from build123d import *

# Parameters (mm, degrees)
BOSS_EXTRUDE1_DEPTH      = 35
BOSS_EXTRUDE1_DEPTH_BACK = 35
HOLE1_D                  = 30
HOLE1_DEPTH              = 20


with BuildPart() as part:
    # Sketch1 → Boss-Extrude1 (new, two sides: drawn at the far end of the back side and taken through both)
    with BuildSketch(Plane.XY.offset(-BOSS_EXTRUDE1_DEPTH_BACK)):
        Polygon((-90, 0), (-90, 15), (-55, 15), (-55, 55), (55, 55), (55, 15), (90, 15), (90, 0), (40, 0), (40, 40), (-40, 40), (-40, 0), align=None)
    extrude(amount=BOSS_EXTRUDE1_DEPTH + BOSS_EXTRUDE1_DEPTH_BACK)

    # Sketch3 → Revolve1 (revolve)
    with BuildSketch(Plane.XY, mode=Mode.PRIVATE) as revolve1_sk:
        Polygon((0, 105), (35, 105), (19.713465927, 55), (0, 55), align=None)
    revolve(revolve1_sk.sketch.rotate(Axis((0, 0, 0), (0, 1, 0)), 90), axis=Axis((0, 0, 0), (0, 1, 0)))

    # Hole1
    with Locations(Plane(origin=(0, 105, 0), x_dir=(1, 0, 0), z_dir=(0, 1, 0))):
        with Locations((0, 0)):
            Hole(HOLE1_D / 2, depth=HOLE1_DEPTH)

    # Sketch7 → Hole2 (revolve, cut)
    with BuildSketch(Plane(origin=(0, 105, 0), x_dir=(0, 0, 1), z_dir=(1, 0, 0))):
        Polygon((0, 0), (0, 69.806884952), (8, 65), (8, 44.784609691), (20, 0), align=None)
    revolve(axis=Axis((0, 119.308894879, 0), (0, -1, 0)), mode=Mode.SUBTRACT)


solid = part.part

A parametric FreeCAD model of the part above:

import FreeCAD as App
import Part
import Sketcher
Q = App.Units.Quantity

doc = App.newDocument("Part")
body = doc.addObject("PartDesign::Body", "Body")

# Sketch on XY plane
sketch1 = doc.addObject("Sketcher::SketchObject", "Sketch")
body.addObject(sketch1)
sketch1.AttachmentSupport = (doc.XY_Plane, [""])
sketch1.MapMode = "FlatFace"
sketch1.addGeometry(Part.LineSegment(App.Vector(-90, 15, 0), App.Vector(-90, 0, 0)), False)
sketch1.addGeometry(Part.LineSegment(App.Vector(-90, 0, 0), App.Vector(-40, 0, 0)), False)
sketch1.addGeometry(Part.LineSegment(App.Vector(-40, 0, 0), App.Vector(-40, 40, 0)), False)
sketch1.addGeometry(Part.LineSegment(App.Vector(-40, 40, 0), App.Vector(40, 40, 0)), False)
sketch1.addGeometry(Part.LineSegment(App.Vector(40, 40, 0), App.Vector(40, 0, 0)), False)
sketch1.addGeometry(Part.LineSegment(App.Vector(40, 0, 0), App.Vector(90, 0, 0)), False)
sketch1.addGeometry(Part.LineSegment(App.Vector(90, 0, 0), App.Vector(90, 15, 0)), False)
sketch1.addGeometry(Part.LineSegment(App.Vector(90, 15, 0), App.Vector(55, 15, 0)), False)
sketch1.addGeometry(Part.LineSegment(App.Vector(55, 15, 0), App.Vector(55, 55, 0)), False)
sketch1.addGeometry(Part.LineSegment(App.Vector(55, 55, 0), App.Vector(-55, 55, 0)), False)
sketch1.addGeometry(Part.LineSegment(App.Vector(-55, 55, 0), App.Vector(-55, 15, 0)), False)
sketch1.addGeometry(Part.LineSegment(App.Vector(-55, 15, 0), App.Vector(-90, 15, 0)), False)
sketch1.addConstraint(Sketcher.Constraint("Coincident", 0, 2, 1, 1))
sketch1.addConstraint(Sketcher.Constraint("Coincident", 1, 2, 2, 1))
sketch1.addConstraint(Sketcher.Constraint("Coincident", 2, 2, 3, 1))
sketch1.addConstraint(Sketcher.Constraint("Coincident", 3, 2, 4, 1))
sketch1.addConstraint(Sketcher.Constraint("Coincident", 4, 2, 5, 1))
sketch1.addConstraint(Sketcher.Constraint("Coincident", 5, 2, 6, 1))
sketch1.addConstraint(Sketcher.Constraint("Coincident", 6, 2, 7, 1))
sketch1.addConstraint(Sketcher.Constraint("Coincident", 7, 2, 8, 1))
sketch1.addConstraint(Sketcher.Constraint("Coincident", 8, 2, 9, 1))
sketch1.addConstraint(Sketcher.Constraint("Coincident", 9, 2, 10, 1))
sketch1.addConstraint(Sketcher.Constraint("Coincident", 10, 2, 11, 1))
sketch1.addConstraint(Sketcher.Constraint("Coincident", 11, 2, 0, 1))
sketch1.addConstraint(Sketcher.Constraint("Vertical", 0))
sketch1.addConstraint(Sketcher.Constraint("Horizontal", 1))
sketch1.addConstraint(Sketcher.Constraint("Vertical", 2))
sketch1.addConstraint(Sketcher.Constraint("Horizontal", 3))
sketch1.addConstraint(Sketcher.Constraint("Vertical", 4))
sketch1.addConstraint(Sketcher.Constraint("Horizontal", 5))
sketch1.addConstraint(Sketcher.Constraint("Vertical", 6))
sketch1.addConstraint(Sketcher.Constraint("Horizontal", 7))
sketch1.addConstraint(Sketcher.Constraint("Vertical", 8))
sketch1.addConstraint(Sketcher.Constraint("Horizontal", 9))
sketch1.addConstraint(Sketcher.Constraint("Vertical", 10))
sketch1.addConstraint(Sketcher.Constraint("Horizontal", 11))
sketch1.addConstraint(Sketcher.Constraint("Symmetric", 1, 2, 4, 2, -1, 1))
sketch1.addConstraint(Sketcher.Constraint("Symmetric", 0, 2, 5, 2, -2))
sketch1.addConstraint(Sketcher.Constraint("Symmetric", 7, 2, 10, 2, -2))
sketch1.addConstraint(Sketcher.Constraint("Equal", 4, 8))
sketch1.addConstraint(Sketcher.Constraint("DistanceX", 1, 1, 1, 2, 50.0))
sketch1.addConstraint(Sketcher.Constraint("DistanceX", 3, 1, 3, 2, 80.0))
sketch1.addConstraint(Sketcher.Constraint("DistanceX", 7, 2, 7, 1, 35.0))
sketch1.addConstraint(Sketcher.Constraint("DistanceY", 0, 2, 0, 1, 15.0))
sketch1.addConstraint(Sketcher.Constraint("DistanceY", 2, 1, 2, 2, 40.0))
pad1 = doc.addObject("PartDesign::Pad", "Pad")
body.addObject(pad1)
pad1.Profile = sketch1
pad1.Type = "TwoLengths"
pad1.Length = 35
pad1.Length2 = 35

# Sketch on XY plane
sketch2 = doc.addObject("Sketcher::SketchObject", "Sketch001")
body.addObject(sketch2)
sketch2.AttachmentSupport = (doc.XY_Plane, [""])
sketch2.MapMode = "FlatFace"
sketch2.addGeometry(Part.LineSegment(App.Vector(35, 105, 0), App.Vector(0, 105, 0)), False)
sketch2.addGeometry(Part.LineSegment(App.Vector(0, 105, 0), App.Vector(0, 55, 0)), False)
sketch2.addGeometry(Part.LineSegment(App.Vector(0, 55, 0), App.Vector(19.713466, 55, 0)), False)
sketch2.addGeometry(Part.LineSegment(App.Vector(19.713466, 55, 0), App.Vector(35, 105, 0)), False)
sketch2.addConstraint(Sketcher.Constraint("Coincident", 0, 2, 1, 1))
sketch2.addConstraint(Sketcher.Constraint("Coincident", 1, 2, 2, 1))
sketch2.addConstraint(Sketcher.Constraint("Coincident", 2, 2, 3, 1))
sketch2.addConstraint(Sketcher.Constraint("Coincident", 3, 2, 0, 1))
sketch2.addConstraint(Sketcher.Constraint("Horizontal", 0))
sketch2.addConstraint(Sketcher.Constraint("Vertical", 1))
sketch2.addConstraint(Sketcher.Constraint("Horizontal", 2))
sketch2.addConstraint(Sketcher.Constraint("PointOnObject", 0, 2, -2))
sketch2.addConstraint(Sketcher.Constraint("DistanceX", 0, 2, 0, 1, 35.0))
sketch2.addConstraint(Sketcher.Constraint("DistanceY", 1, 2, 1, 1, 50.0))
sketch2.addConstraint(Sketcher.Constraint("Angle", 3, Q("73 deg")))
sketch2.addConstraint(Sketcher.Constraint("DistanceY", -1, 1, 0, 2, 105.0))
revolution = doc.addObject("PartDesign::Revolution", "Revolution")
body.addObject(revolution)
revolution.Profile = sketch2
revolution.ReferenceAxis = (sketch2, ["V_Axis"])
revolution.Angle = 360

# Sketch on XZ plane
sketch3 = doc.addObject("Sketcher::SketchObject", "Sketch002")
body.addObject(sketch3)
sketch3.AttachmentSupport = (doc.XZ_Plane, [""])
sketch3.MapMode = "FlatFace"
sketch3.AttachmentOffset = App.Placement(App.Vector(0, 0, -105), App.Rotation())
sketch3.addGeometry(Part.Circle(App.Vector(0, 0, 0), App.Vector(0, 0, 1), 15), False)
sketch3.addConstraint(Sketcher.Constraint("Coincident", 0, 3, -1, 1))
sketch3.addConstraint(Sketcher.Constraint("Diameter", 0, 30.0))
doc.recompute()
hole = doc.addObject("PartDesign::Hole", "Hole")
body.addObject(hole)
hole.Profile = sketch3
hole.ThreadType = "None"
hole.Diameter = 30
hole.DepthType = "Dimension"
hole.Depth = 20
hole.DrillPoint = "Flat"
hole.Reversed = True

# Sketch on YZ plane
sketch4 = doc.addObject("Sketcher::SketchObject", "Sketch003")
body.addObject(sketch4)
sketch4.AttachmentSupport = (doc.YZ_Plane, [""])
sketch4.MapMode = "FlatFace"
sketch4.addGeometry(Part.LineSegment(App.Vector(35, 0, 0), App.Vector(105, 0, 0)), False)
sketch4.addGeometry(Part.LineSegment(App.Vector(105, 0, 0), App.Vector(105, 20, 0)), False)
sketch4.addGeometry(Part.LineSegment(App.Vector(105, 20, 0), App.Vector(60, 8, 0)), False)
sketch4.addGeometry(Part.LineSegment(App.Vector(60, 8, 0), App.Vector(40, 8, 0)), False)
sketch4.addGeometry(Part.LineSegment(App.Vector(40, 8, 0), App.Vector(35, 0, 0)), False)
sketch4.addConstraint(Sketcher.Constraint("Coincident", 0, 2, 1, 1))
sketch4.addConstraint(Sketcher.Constraint("Coincident", 1, 2, 2, 1))
sketch4.addConstraint(Sketcher.Constraint("Coincident", 2, 2, 3, 1))
sketch4.addConstraint(Sketcher.Constraint("Coincident", 3, 2, 4, 1))
sketch4.addConstraint(Sketcher.Constraint("Coincident", 4, 2, 0, 1))
sketch4.addConstraint(Sketcher.Constraint("Horizontal", 0))
sketch4.addConstraint(Sketcher.Constraint("Vertical", 1))
sketch4.addConstraint(Sketcher.Constraint("Horizontal", 3))
sketch4.addConstraint(Sketcher.Constraint("PointOnObject", 0, 2, -1))
sketch4.addConstraint(Sketcher.Constraint("DistanceY", 1, 1, 1, 2, 20.0))
sketch4.addConstraint(Sketcher.Constraint("Angle", 2, Q("-165 deg")))
sketch4.addConstraint(Sketcher.Constraint("Angle", 4, Q("-121 deg")))
sketch4.addConstraint(Sketcher.Constraint("DistanceX", -1, 1, 0, 2, 105.0))
sketch4.addConstraint(Sketcher.Constraint("DistanceY", -1, 1, 2, 2, 8.0))
sketch4.addConstraint(Sketcher.Constraint("DistanceX", -1, 1, 3, 2, 40.0))
groove = doc.addObject("PartDesign::Groove", "Groove")
body.addObject(groove)
groove.Profile = sketch4
groove.ReferenceAxis = (sketch4, ["H_Axis"])
groove.Angle = 360

doc.recompute()
